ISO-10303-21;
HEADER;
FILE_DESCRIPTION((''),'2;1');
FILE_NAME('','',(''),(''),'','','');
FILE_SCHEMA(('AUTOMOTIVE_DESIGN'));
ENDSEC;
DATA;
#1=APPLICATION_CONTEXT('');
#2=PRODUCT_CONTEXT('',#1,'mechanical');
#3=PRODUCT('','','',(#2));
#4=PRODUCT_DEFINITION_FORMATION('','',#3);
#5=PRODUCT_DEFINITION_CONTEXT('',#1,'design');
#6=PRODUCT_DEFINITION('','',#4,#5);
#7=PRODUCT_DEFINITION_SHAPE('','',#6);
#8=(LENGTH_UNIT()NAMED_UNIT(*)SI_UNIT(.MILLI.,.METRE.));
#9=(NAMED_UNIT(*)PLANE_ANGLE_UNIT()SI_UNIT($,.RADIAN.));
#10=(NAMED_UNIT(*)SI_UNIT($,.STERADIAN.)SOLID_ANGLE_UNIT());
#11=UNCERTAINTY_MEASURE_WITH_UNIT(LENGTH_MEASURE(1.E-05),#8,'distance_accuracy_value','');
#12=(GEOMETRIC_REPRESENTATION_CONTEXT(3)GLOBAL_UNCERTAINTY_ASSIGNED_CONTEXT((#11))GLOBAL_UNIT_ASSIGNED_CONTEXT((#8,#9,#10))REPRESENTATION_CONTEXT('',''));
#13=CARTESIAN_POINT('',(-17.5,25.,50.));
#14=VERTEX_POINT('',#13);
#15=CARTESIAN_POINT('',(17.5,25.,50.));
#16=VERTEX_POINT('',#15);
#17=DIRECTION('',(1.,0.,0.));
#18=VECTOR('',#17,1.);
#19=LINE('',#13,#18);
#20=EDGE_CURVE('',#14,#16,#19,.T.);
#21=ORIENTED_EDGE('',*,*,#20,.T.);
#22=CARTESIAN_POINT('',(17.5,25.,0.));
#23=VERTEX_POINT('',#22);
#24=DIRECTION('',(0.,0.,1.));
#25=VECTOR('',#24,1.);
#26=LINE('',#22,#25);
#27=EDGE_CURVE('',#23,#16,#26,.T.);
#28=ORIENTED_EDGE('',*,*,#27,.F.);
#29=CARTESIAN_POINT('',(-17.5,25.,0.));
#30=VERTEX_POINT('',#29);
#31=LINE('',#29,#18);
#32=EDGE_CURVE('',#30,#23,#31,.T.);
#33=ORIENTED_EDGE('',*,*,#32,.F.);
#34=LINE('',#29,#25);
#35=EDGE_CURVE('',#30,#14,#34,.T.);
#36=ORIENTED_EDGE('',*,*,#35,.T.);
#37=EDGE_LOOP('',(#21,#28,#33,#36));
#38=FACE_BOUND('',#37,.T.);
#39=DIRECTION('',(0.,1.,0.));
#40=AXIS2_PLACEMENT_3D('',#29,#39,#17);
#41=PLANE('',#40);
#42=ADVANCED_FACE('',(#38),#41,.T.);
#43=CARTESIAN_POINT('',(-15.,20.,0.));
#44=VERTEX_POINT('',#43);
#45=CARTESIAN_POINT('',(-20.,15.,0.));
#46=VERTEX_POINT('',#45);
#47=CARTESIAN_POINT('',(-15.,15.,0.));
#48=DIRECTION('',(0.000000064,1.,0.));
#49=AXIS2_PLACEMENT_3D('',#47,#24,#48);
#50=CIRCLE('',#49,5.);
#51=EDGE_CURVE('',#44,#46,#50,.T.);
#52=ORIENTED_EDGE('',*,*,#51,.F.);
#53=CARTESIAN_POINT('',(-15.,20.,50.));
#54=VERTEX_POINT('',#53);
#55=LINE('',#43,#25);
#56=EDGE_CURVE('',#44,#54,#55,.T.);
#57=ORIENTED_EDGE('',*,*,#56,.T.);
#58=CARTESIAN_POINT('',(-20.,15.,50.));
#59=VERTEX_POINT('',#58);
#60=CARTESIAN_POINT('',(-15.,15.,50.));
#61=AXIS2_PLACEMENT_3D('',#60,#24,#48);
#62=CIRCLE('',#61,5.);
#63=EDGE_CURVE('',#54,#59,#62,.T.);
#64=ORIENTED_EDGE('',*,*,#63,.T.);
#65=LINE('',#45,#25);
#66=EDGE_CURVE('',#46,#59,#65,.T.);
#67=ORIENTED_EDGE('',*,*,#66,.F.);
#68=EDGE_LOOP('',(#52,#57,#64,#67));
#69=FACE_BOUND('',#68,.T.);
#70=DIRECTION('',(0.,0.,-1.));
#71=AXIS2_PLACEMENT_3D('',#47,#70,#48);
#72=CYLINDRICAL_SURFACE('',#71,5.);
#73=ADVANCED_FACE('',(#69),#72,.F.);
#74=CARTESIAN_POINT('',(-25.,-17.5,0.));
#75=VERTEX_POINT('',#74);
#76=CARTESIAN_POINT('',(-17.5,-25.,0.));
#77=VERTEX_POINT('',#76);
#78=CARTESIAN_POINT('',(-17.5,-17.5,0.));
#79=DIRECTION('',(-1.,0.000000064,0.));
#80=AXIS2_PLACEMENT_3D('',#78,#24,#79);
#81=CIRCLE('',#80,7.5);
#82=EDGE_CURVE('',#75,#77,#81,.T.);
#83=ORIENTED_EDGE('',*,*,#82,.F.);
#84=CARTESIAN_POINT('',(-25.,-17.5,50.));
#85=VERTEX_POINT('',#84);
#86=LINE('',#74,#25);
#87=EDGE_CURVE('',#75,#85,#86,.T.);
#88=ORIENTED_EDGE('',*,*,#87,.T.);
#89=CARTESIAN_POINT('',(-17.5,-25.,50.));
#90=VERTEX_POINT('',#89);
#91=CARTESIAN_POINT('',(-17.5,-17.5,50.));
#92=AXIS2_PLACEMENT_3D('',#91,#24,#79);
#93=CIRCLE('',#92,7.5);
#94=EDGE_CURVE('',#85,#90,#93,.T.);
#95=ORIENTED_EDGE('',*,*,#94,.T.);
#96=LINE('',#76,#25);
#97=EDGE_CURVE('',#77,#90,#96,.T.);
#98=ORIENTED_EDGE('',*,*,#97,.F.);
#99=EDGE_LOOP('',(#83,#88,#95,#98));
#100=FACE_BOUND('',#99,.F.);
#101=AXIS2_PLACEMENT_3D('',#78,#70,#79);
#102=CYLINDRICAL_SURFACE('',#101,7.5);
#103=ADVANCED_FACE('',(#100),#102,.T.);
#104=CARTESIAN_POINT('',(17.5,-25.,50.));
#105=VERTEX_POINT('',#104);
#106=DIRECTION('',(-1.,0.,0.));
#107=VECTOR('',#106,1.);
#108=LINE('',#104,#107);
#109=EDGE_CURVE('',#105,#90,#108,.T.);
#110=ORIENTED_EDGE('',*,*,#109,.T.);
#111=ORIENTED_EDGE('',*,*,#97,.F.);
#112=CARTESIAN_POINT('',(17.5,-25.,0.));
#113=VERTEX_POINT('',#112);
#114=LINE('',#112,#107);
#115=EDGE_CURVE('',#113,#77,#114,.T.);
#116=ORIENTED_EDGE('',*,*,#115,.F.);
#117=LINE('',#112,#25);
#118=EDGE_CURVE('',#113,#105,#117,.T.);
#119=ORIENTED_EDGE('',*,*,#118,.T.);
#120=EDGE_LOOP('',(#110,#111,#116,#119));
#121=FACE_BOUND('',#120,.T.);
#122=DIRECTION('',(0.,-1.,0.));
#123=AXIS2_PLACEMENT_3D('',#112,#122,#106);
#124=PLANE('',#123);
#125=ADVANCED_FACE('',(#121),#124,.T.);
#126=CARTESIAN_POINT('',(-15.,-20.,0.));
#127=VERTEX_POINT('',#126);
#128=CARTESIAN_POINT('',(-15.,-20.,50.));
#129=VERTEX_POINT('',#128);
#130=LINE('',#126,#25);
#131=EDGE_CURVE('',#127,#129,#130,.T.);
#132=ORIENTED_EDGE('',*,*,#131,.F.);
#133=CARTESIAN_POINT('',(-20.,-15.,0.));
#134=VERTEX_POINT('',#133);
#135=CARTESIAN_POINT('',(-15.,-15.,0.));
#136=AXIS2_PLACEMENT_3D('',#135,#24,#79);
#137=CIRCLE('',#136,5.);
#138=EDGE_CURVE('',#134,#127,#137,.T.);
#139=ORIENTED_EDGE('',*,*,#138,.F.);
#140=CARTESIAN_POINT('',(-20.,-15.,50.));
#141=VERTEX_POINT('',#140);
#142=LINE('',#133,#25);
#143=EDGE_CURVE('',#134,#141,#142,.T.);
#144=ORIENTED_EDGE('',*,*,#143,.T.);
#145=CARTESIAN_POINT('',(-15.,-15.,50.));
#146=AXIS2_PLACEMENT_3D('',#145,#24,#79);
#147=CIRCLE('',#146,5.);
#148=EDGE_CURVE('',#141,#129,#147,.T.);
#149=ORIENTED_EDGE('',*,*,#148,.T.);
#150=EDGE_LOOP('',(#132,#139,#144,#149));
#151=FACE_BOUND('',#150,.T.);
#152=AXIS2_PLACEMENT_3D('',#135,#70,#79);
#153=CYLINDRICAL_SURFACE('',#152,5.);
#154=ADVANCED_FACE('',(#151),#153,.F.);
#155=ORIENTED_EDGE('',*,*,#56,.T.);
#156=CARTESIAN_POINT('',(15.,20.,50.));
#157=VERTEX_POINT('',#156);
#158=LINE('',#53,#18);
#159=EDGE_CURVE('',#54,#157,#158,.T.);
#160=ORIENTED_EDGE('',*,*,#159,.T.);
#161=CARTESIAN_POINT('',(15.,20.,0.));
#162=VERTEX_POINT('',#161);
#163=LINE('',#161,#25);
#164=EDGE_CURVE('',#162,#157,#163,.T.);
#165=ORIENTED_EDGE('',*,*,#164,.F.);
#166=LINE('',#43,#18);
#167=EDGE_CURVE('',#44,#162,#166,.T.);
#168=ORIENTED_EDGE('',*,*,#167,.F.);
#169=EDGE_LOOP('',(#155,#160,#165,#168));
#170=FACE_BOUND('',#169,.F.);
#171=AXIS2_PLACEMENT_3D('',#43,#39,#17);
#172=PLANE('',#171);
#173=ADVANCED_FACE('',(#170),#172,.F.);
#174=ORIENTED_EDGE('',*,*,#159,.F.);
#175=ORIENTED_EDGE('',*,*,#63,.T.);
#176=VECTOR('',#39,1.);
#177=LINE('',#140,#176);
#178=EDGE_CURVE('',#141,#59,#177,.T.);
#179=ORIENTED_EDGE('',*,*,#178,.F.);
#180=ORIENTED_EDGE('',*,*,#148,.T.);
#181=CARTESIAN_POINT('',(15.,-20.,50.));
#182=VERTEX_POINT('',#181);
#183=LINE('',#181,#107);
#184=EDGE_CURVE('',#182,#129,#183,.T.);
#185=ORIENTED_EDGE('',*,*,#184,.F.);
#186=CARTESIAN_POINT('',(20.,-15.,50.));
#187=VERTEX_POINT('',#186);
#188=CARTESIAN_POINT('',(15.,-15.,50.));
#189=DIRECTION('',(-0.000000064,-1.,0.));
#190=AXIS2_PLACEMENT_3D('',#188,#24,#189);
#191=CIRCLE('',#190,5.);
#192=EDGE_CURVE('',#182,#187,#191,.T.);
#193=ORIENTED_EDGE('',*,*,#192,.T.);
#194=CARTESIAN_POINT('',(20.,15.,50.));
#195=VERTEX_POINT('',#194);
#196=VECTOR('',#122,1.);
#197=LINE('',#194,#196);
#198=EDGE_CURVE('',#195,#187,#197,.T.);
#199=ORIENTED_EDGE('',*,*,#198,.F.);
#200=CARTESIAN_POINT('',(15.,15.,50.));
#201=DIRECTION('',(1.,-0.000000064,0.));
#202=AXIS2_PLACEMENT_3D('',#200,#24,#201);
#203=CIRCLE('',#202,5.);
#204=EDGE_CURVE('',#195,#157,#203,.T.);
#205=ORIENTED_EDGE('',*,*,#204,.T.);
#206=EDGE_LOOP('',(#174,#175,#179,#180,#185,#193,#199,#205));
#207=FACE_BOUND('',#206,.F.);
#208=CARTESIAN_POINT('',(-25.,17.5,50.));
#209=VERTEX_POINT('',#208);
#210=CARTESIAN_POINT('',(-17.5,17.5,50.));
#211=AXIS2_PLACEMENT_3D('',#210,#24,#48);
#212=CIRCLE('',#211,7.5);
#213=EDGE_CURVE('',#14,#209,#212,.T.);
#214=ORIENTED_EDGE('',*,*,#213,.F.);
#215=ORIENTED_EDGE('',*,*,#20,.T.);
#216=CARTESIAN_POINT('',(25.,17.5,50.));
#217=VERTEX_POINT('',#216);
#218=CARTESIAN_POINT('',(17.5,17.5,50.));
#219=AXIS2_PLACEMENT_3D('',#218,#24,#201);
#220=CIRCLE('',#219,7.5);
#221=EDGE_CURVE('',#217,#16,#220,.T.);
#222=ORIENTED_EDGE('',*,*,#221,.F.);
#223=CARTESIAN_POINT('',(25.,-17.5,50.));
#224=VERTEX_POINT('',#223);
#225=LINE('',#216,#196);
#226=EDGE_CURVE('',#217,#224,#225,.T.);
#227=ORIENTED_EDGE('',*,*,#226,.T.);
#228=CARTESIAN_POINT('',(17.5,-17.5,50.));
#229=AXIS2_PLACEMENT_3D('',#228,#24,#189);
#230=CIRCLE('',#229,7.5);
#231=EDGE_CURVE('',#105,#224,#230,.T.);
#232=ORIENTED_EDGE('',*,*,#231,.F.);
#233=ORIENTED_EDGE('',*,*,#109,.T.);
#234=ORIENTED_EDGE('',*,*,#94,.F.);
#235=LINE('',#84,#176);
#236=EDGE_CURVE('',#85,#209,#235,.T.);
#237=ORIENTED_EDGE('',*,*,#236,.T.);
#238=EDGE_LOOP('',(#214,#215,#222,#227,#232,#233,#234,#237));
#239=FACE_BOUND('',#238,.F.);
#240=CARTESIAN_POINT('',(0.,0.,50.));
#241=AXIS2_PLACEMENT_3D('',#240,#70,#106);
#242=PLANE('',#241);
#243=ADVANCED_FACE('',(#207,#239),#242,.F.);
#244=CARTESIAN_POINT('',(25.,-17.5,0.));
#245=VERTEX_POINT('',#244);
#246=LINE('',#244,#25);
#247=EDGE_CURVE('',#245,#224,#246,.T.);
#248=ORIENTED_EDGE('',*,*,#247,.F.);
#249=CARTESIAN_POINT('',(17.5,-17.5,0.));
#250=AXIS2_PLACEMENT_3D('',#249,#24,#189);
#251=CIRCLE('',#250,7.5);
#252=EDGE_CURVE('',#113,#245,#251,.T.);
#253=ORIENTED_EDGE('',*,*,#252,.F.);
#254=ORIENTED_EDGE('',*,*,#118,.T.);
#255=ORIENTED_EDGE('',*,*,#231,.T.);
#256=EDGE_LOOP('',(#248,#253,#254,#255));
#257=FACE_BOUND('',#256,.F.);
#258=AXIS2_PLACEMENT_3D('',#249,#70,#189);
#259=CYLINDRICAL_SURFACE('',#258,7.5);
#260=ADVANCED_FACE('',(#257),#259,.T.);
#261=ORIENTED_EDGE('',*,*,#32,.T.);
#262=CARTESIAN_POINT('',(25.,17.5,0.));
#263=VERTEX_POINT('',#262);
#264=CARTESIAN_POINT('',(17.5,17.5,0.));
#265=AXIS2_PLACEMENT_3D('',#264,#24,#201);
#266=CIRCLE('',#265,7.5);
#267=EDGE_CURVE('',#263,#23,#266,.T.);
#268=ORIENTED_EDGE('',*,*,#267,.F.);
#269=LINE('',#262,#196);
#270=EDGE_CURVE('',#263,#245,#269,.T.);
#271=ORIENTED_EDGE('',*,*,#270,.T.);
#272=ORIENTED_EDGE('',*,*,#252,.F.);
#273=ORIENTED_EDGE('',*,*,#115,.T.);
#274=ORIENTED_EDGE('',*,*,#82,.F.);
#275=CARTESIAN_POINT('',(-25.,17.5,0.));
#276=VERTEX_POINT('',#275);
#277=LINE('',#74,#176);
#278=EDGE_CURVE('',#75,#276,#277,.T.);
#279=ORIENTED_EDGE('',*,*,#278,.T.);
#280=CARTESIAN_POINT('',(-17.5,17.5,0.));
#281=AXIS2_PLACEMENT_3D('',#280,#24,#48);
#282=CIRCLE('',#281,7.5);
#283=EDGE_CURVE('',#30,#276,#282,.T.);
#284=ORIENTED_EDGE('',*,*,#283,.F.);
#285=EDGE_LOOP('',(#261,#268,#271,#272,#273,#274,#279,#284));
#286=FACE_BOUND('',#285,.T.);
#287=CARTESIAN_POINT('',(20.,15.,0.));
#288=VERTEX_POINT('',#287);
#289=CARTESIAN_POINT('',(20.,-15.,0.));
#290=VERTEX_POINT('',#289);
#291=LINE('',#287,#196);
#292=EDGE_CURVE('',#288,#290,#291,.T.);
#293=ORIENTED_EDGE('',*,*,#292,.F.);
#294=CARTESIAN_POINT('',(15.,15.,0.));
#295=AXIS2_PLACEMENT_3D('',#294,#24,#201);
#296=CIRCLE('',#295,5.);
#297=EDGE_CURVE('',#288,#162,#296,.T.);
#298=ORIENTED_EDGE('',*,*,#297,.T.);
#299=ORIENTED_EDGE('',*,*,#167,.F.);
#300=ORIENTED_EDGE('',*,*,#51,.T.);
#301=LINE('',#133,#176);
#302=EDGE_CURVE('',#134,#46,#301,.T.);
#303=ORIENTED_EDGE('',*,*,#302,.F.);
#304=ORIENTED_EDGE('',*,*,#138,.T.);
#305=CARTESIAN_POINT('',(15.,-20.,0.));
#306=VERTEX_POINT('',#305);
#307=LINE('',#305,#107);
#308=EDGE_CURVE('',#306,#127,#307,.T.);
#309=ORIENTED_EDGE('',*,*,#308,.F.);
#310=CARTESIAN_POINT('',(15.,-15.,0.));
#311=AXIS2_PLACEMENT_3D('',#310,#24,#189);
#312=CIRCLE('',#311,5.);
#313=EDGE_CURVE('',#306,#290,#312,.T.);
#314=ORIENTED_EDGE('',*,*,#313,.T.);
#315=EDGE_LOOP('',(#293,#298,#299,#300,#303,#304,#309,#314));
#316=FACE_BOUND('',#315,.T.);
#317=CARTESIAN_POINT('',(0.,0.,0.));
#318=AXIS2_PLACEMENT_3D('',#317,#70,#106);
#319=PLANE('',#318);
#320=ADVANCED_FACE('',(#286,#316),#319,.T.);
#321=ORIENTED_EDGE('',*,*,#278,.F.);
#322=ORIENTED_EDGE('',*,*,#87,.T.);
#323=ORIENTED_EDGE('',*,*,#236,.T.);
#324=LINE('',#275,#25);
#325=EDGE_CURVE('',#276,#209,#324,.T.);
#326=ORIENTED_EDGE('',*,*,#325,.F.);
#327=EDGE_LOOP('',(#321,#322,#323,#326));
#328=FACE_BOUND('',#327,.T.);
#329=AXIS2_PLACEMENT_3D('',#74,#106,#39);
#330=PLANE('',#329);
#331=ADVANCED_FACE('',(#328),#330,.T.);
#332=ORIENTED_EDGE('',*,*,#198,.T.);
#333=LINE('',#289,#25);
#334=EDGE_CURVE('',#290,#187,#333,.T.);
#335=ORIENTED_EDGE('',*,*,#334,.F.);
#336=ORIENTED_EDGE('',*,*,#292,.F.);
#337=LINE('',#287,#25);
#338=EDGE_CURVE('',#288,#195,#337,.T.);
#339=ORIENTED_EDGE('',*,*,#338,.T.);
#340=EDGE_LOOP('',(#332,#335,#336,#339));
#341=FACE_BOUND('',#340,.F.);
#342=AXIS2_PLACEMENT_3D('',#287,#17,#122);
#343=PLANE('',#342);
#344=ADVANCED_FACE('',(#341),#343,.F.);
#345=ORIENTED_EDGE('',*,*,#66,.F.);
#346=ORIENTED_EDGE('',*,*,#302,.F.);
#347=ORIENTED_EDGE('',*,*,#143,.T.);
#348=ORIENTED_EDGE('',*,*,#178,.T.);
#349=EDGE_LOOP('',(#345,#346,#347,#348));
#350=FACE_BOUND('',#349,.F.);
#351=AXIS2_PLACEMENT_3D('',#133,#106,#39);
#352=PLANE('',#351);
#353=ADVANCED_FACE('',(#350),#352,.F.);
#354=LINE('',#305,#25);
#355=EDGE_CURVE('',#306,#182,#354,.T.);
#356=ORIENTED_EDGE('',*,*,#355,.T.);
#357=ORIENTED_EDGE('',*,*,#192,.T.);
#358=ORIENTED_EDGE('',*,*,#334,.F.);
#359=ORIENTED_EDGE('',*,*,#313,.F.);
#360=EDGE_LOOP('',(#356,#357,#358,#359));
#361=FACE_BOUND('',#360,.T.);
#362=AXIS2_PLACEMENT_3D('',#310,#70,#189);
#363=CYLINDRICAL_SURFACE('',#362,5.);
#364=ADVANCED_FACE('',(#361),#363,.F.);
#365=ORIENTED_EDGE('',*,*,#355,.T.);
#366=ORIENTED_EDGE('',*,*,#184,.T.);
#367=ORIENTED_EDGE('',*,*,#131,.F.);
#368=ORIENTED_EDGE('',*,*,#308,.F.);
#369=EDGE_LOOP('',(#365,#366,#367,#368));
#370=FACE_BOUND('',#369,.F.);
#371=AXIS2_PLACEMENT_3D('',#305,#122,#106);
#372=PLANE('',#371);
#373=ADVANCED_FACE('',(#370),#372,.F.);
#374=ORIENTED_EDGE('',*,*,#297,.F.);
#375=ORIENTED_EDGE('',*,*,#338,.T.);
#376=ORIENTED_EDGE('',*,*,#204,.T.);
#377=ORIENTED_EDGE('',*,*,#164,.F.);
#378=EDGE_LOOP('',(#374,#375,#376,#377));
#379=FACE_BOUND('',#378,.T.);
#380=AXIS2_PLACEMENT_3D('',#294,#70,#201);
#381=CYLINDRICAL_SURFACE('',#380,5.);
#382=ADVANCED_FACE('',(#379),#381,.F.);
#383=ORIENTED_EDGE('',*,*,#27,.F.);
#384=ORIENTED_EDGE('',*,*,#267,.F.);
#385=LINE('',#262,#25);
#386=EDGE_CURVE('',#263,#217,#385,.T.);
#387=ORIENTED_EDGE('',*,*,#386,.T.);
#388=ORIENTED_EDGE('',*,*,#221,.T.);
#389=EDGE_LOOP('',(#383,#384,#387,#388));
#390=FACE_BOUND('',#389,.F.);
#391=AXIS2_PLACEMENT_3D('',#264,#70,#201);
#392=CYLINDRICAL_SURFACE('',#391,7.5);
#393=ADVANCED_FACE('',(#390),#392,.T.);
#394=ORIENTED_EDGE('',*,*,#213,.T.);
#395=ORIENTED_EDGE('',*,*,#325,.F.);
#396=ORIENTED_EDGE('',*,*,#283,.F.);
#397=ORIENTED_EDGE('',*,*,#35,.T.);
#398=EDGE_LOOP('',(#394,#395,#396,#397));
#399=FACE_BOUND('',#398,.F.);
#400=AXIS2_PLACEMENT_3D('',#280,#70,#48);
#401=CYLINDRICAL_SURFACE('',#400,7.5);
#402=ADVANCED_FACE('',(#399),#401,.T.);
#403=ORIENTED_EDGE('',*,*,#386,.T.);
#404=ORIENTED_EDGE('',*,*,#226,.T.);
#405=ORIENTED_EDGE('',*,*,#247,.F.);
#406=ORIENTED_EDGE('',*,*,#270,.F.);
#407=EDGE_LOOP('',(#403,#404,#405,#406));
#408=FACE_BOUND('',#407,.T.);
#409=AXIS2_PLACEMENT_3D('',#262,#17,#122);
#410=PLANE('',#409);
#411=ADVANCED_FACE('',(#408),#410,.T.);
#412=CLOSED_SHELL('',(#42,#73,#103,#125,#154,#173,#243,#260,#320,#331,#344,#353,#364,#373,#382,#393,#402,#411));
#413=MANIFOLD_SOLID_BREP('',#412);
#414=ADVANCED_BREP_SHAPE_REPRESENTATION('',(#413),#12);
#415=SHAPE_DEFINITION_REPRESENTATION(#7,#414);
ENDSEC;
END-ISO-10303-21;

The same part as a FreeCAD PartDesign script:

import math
import FreeCAD as App
import Part
import Sketcher
from FreeCAD import Vector

doc = App.newDocument("Part")
body = doc.addObject("PartDesign::Body", "Body")

# Sketch on XY plane
sketch1 = body.newObject("Sketcher::SketchObject", "Sketch")
sketch1.AttachmentSupport = (doc.getObject("XY_Plane"), [""])
sketch1.MapMode = "FlatFace"
sketch1.addGeometry(Part.LineSegment(Vector(17.5, 25, 0), Vector(-17.5, 25, 0)), False)
sketch1.addGeometry(Part.ArcOfCircle(Part.Circle(Vector(-17.5, 17.5, 0), Vector(0, 0, 1), 7.5), math.radians(90), math.radians(180)), False)
sketch1.addGeometry(Part.LineSegment(Vector(-25, 17.5, 0), Vector(-25, -17.5, 0)), False)
sketch1.addGeometry(Part.ArcOfCircle(Part.Circle(Vector(-17.5, -17.5, 0), Vector(0, 0, 1), 7.5), math.radians(180), math.radians(270)), False)
sketch1.addGeometry(Part.LineSegment(Vector(-17.5, -25, 0), Vector(17.5, -25, 0)), False)
sketch1.addGeometry(Part.ArcOfCircle(Part.Circle(Vector(17.5, -17.5, 0), Vector(0, 0, 1), 7.5), math.radians(-90), math.radians(0)), False)
sketch1.addGeometry(Part.LineSegment(Vector(25, -17.5, 0), Vector(25, 17.5, 0)), False)
sketch1.addGeometry(Part.ArcOfCircle(Part.Circle(Vector(17.5, 17.5, 0), Vector(0, 0, 1), 7.5), math.radians(0), math.radians(90)), False)
sketch1.addGeometry(Part.LineSegment(Vector(-15, 20, 0), Vector(15, 20, 0)), False)
sketch1.addGeometry(Part.ArcOfCircle(Part.Circle(Vector(15, 15, 0), Vector(0, 0, 1), 5), math.radians(0), math.radians(90)), False)
sketch1.addGeometry(Part.LineSegment(Vector(20, 15, 0), Vector(20, -15, 0)), False)
sketch1.addGeometry(Part.ArcOfCircle(Part.Circle(Vector(15, -15, 0), Vector(0, 0, 1), 5), math.radians(-90), math.radians(0)), False)
sketch1.addGeometry(Part.LineSegment(Vector(15, -20, 0), Vector(-15, -20, 0)), False)
sketch1.addGeometry(Part.ArcOfCircle(Part.Circle(Vector(-15, -15, 0), Vector(0, 0, 1), 5), math.radians(180), math.radians(270)), False)
sketch1.addGeometry(Part.LineSegment(Vector(-20, -15, 0), Vector(-20, 15, 0)), False)
sketch1.addGeometry(Part.ArcOfCircle(Part.Circle(Vector(-15, 15, 0), Vector(0, 0, 1), 5), math.radians(90), math.radians(180)), False)
sketch1.addConstraint(Sketcher.Constraint("Tangent", 0, 2, 1, 1))
sketch1.addConstraint(Sketcher.Constraint("Tangent", 1, 2, 2, 1))
sketch1.addConstraint(Sketcher.Constraint("Tangent", 2, 2, 3, 1))
sketch1.addConstraint(Sketcher.Constraint("Tangent", 3, 2, 4, 1))
sketch1.addConstraint(Sketcher.Constraint("Tangent", 4, 2, 5, 1))
sketch1.addConstraint(Sketcher.Constraint("Tangent", 5, 2, 6, 1))
sketch1.addConstraint(Sketcher.Constraint("Tangent", 6, 2, 7, 1))
sketch1.addConstraint(Sketcher.Constraint("Tangent", 7, 2, 0, 1))
sketch1.addConstraint(Sketcher.Constraint("Tangent", 8, 2, 9, 2))
sketch1.addConstraint(Sketcher.Constraint("Tangent", 9, 1, 10, 1))
sketch1.addConstraint(Sketcher.Constraint("Tangent", 10, 2, 11, 2))
sketch1.addConstraint(Sketcher.Constraint("Tangent", 11, 1, 12, 1))
sketch1.addConstraint(Sketcher.Constraint("Tangent", 12, 2, 13, 2))
sketch1.addConstraint(Sketcher.Constraint("Tangent", 13, 1, 14, 1))
sketch1.addConstraint(Sketcher.Constraint("Tangent", 14, 2, 15, 2))
sketch1.addConstraint(Sketcher.Constraint("Tangent", 15, 1, 8, 1))
sketch1.addConstraint(Sketcher.Constraint("Horizontal", 0))
sketch1.addConstraint(Sketcher.Constraint("Vertical", 2))
sketch1.addConstraint(Sketcher.Constraint("Horizontal", 4))
sketch1.addConstraint(Sketcher.Constraint("Vertical", 6))
sketch1.addConstraint(Sketcher.Constraint("Horizontal", 8))
sketch1.addConstraint(Sketcher.Constraint("Vertical", 10))
sketch1.addConstraint(Sketcher.Constraint("Horizontal", 12))
sketch1.addConstraint(Sketcher.Constraint("Vertical", 14))
sketch1.addConstraint(Sketcher.Constraint("Equal", 1, 3))
sketch1.addConstraint(Sketcher.Constraint("Equal", 3, 5))
sketch1.addConstraint(Sketcher.Constraint("Equal", 5, 7))
sketch1.addConstraint(Sketcher.Constraint("Equal", 9, 11))
sketch1.addConstraint(Sketcher.Constraint("Equal", 11, 13))
sketch1.addConstraint(Sketcher.Constraint("Equal", 13, 15))
sketch1.addConstraint(Sketcher.Constraint("Symmetric", 1, 3, 5, 3, -1, 1))
sketch1.addConstraint(Sketcher.Constraint("Symmetric", 9, 3, 13, 3, -1, 1))
sketch1.addConstraint(Sketcher.Constraint("Equal", 4, 2))
sketch1.addConstraint(Sketcher.Constraint("Equal", 12, 10))
sketch1.addConstraint(Sketcher.Constraint("Radius", 9, 5.0))
sketch1.addConstraint(Sketcher.Constraint("Radius", 1, 7.5))
sketch1.addConstraint(Sketcher.Constraint("DistanceX", 0, 2, 0, 1, 35.0))
sketch1.addConstraint(Sketcher.Constraint("DistanceX", 8, 1, 8, 2, 30.0))
pad1 = body.newObject("PartDesign::Pad", "Pad")
pad1.Profile = sketch1
pad1.Length = 50

doc.recompute()
